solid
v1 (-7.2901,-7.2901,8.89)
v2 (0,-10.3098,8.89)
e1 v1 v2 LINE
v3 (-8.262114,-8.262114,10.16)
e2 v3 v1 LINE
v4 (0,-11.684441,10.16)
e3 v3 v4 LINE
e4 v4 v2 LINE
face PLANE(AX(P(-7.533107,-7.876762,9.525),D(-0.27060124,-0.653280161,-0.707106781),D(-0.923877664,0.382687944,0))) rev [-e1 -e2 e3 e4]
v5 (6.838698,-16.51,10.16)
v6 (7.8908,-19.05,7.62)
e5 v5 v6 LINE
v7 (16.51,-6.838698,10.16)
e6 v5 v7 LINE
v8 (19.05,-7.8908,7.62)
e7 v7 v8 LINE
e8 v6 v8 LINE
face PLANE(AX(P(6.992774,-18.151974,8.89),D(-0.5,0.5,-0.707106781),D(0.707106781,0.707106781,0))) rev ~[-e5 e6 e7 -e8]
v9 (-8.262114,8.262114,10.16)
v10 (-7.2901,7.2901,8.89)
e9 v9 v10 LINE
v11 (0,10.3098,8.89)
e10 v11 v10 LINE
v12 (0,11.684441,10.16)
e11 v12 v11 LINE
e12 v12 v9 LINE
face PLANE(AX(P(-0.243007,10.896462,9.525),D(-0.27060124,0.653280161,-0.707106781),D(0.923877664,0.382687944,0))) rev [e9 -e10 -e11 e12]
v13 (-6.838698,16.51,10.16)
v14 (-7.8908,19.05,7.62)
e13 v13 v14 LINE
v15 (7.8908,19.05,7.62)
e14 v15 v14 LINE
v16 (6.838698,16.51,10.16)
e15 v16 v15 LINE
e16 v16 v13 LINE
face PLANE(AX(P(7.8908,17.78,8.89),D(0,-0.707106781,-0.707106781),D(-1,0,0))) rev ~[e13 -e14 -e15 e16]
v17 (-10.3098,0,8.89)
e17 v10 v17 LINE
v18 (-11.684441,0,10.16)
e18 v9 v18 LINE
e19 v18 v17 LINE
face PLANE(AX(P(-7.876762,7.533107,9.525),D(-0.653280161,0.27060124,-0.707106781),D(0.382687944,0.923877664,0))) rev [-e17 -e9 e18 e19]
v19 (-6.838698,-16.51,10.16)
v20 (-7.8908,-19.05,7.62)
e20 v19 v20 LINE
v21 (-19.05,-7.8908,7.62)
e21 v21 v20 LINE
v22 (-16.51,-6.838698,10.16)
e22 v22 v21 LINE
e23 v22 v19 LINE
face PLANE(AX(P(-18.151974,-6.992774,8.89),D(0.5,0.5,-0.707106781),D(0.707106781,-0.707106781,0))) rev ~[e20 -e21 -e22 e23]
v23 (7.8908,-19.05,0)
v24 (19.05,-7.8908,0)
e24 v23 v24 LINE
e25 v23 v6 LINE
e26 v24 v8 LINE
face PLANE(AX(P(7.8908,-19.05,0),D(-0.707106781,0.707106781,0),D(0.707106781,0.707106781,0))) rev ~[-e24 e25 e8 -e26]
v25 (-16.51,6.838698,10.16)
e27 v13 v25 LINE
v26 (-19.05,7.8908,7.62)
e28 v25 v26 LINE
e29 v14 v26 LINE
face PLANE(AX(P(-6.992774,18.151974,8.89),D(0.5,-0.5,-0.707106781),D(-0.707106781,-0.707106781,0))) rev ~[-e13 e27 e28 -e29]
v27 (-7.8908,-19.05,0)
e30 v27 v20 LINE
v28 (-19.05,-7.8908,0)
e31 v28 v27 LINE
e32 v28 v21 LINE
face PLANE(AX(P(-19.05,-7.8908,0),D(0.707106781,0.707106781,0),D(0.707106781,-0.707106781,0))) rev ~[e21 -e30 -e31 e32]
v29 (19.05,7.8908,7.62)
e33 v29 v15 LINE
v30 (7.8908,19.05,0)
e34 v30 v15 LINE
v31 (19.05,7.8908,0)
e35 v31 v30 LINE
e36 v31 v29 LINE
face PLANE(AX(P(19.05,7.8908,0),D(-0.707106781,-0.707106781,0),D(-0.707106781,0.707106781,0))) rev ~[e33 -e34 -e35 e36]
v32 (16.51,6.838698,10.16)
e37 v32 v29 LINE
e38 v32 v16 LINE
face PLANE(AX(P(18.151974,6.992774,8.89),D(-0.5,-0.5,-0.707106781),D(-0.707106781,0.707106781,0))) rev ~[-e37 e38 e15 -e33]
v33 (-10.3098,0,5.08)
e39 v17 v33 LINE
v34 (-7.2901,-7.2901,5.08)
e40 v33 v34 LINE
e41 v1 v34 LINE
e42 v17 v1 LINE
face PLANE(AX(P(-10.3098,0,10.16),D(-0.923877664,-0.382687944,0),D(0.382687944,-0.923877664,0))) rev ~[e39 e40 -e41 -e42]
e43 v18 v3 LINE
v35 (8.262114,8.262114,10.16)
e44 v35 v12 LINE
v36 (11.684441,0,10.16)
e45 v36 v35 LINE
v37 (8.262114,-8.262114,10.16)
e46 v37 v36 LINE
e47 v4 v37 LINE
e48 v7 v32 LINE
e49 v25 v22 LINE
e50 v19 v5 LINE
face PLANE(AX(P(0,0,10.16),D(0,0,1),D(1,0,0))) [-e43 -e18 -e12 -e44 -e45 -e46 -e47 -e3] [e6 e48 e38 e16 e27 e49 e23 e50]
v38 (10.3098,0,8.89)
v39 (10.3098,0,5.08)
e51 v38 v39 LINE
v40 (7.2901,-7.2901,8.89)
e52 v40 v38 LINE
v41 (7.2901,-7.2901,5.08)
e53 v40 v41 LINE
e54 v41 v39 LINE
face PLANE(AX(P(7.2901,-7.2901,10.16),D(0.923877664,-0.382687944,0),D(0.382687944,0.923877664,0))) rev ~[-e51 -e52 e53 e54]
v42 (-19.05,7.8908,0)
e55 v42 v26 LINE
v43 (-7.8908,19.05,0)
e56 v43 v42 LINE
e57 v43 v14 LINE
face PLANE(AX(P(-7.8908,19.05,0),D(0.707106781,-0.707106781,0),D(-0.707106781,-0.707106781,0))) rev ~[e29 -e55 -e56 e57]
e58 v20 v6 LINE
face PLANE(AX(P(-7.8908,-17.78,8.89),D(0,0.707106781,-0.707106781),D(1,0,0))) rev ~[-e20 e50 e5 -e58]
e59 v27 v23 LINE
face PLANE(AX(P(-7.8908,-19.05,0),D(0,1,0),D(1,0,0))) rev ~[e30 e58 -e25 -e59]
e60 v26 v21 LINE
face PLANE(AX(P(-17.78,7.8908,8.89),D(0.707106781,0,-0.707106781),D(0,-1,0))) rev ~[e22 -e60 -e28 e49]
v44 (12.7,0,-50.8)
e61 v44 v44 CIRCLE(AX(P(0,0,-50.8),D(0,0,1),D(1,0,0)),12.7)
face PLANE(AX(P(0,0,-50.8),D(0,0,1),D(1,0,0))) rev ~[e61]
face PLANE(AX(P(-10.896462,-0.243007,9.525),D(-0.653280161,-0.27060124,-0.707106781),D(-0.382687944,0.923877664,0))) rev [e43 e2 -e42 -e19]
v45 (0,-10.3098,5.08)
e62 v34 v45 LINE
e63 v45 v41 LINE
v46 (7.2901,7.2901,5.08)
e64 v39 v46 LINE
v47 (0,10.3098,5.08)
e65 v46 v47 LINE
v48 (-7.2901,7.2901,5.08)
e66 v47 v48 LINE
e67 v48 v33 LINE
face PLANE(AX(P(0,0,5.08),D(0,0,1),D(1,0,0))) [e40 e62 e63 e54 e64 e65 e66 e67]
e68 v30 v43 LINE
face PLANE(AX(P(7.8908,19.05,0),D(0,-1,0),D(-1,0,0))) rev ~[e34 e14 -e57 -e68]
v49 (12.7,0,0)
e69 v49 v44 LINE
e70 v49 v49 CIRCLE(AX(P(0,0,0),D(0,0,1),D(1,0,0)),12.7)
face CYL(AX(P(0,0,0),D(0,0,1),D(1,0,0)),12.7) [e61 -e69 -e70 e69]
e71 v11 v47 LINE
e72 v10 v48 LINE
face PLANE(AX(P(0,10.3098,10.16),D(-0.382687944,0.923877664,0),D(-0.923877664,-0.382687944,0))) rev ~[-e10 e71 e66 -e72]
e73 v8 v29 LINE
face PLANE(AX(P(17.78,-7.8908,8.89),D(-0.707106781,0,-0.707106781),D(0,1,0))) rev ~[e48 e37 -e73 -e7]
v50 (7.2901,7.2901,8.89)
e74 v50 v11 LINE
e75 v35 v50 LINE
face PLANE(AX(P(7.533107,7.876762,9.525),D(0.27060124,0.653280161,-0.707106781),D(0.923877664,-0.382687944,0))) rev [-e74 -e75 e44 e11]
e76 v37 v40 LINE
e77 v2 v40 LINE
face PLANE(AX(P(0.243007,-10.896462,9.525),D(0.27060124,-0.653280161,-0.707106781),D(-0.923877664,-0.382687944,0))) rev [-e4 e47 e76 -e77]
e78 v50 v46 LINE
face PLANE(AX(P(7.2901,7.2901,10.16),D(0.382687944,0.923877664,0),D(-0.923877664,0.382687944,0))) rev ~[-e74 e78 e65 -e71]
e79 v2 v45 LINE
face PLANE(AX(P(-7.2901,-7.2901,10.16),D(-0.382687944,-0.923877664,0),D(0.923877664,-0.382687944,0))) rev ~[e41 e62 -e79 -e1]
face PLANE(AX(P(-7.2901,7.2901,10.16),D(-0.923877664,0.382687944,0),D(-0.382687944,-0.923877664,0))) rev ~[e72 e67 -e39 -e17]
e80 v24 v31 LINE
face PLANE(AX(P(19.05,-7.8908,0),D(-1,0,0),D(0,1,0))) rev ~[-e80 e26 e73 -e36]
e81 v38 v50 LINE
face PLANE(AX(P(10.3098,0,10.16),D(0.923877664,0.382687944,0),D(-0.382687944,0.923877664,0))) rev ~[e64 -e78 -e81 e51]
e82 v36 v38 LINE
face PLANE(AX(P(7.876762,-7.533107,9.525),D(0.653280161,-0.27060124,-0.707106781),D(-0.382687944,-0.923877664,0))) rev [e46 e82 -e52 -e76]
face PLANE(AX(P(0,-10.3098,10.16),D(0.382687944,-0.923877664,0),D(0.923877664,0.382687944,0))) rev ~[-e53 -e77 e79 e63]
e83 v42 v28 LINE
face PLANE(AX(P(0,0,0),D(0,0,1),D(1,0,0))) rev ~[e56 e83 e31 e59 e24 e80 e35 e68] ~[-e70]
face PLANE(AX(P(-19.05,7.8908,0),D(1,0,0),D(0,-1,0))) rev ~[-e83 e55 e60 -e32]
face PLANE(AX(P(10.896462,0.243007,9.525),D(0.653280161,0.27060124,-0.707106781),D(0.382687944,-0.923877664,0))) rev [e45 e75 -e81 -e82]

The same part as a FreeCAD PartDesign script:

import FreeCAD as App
import Part
import Sketcher
from FreeCAD import Vector
Q = App.Units.Quantity


def edges_at(feature, points):
    """Names of the edges that pass closest to the given points."""
    edges = feature.Shape.Edges
    near = lambda p: min(range(len(edges)), key=lambda i: edges[i].distToShape(Part.Vertex(*p))[0])
    return sorted({f"Edge{near(p) + 1}" for p in points})

doc = App.newDocument("Part")
body = doc.addObject("PartDesign::Body", "Body")

# Sketch on XY plane
sketch1 = doc.addObject("Sketcher::SketchObject", "Sketch")
body.addObject(sketch1)
sketch1.AttachmentSupport = (doc.XY_Plane, [""])
sketch1.MapMode = "FlatFace"
sketch1.addGeometry(Part.LineSegment(Vector(7.8908, -19.05, 0), Vector(19.05, -7.8908, 0)), False)
sketch1.addGeometry(Part.LineSegment(Vector(19.05, -7.8908, 0), Vector(19.05, 7.8908, 0)), False)
sketch1.addGeometry(Part.LineSegment(Vector(19.05, 7.8908, 0), Vector(7.8908, 19.05, 0)), False)
sketch1.addGeometry(Part.LineSegment(Vector(7.8908, 19.05, 0), Vector(-7.8908, 19.05, 0)), False)
sketch1.addGeometry(Part.LineSegment(Vector(-7.8908, 19.05, 0), Vector(-19.05, 7.8908, 0)), False)
sketch1.addGeometry(Part.LineSegment(Vector(-19.05, 7.8908, 0), Vector(-19.05, -7.8908, 0)), False)
sketch1.addGeometry(Part.LineSegment(Vector(-19.05, -7.8908, 0), Vector(-7.8908, -19.05, 0)), False)
sketch1.addGeometry(Part.LineSegment(Vector(-7.8908, -19.05, 0), Vector(7.8908, -19.05, 0)), False)
sketch1.addConstraint(Sketcher.Constraint("Coincident", 0, 2, 1, 1))
sketch1.addConstraint(Sketcher.Constraint("Coincident", 1, 2, 2, 1))
sketch1.addConstraint(Sketcher.Constraint("Coincident", 2, 2, 3, 1))
sketch1.addConstraint(Sketcher.Constraint("Coincident", 3, 2, 4, 1))
sketch1.addConstraint(Sketcher.Constraint("Coincident", 4, 2, 5, 1))
sketch1.addConstraint(Sketcher.Constraint("Coincident", 5, 2, 6, 1))
sketch1.addConstraint(Sketcher.Constraint("Coincident", 6, 2, 7, 1))
sketch1.addConstraint(Sketcher.Constraint("Coincident", 7, 2, 0, 1))
sketch1.addConstraint(Sketcher.Constraint("Vertical", 1))
sketch1.addConstraint(Sketcher.Constraint("Horizontal", 3))
sketch1.addConstraint(Sketcher.Constraint("Vertical", 5))
sketch1.addConstraint(Sketcher.Constraint("Horizontal", 7))
sketch1.addConstraint(Sketcher.Constraint("Symmetric", 0, 2, 4, 2, -1, 1))
sketch1.addConstraint(Sketcher.Constraint("Symmetric", 2, 2, 6, 2, -1, 1))
sketch1.addConstraint(Sketcher.Constraint("Perpendicular", 0, 2))
sketch1.addConstraint(Sketcher.Constraint("Perpendicular", 2, 4))
sketch1.addConstraint(Sketcher.Constraint("Perpendicular", 4, 6))
sketch1.addConstraint(Sketcher.Constraint("Horizontal", 1, 2, 4, 2))
sketch1.addConstraint(Sketcher.Constraint("Vertical", 3, 2, 6, 2))
sketch1.addConstraint(Sketcher.Constraint("Equal", 7, 1))
sketch1.addConstraint(Sketcher.Constraint("DistanceX", 4, 2, 1, 2, Q("1.5 in")))
sketch1.addConstraint(Sketcher.Constraint("DistanceX", 3, 2, 3, 1, 15.7816))
pad1 = doc.addObject("PartDesign::Pad", "Pad")
body.addObject(pad1)
pad1.Profile = sketch1
pad1.Length = Q("0.4 in")

# Sketch on XY plane
sketch2 = doc.addObject("Sketcher::SketchObject", "Sketch001")
body.addObject(sketch2)
sketch2.AttachmentSupport = (doc.XY_Plane, [""])
sketch2.MapMode = "FlatFace"
sketch2.addGeometry(Part.Circle(Vector(0, 0, 0), Vector(0, 0, 1), 12.7), False)
sketch2.addConstraint(Sketcher.Constraint("Coincident", 0, 3, -1, 1))
sketch2.addConstraint(Sketcher.Constraint("Diameter", 0, Q("1 in")))
pad2 = doc.addObject("PartDesign::Pad", "Pad001")
body.addObject(pad2)
pad2.Profile = sketch2
pad2.Length = Q("2 in")
pad2.Reversed = True

# Sketch on XY plane
sketch3 = doc.addObject("Sketcher::SketchObject", "Sketch002")
body.addObject(sketch3)
sketch3.AttachmentSupport = (doc.XY_Plane, [""])
sketch3.MapMode = "FlatFace"
sketch3.AttachmentOffset = App.Placement(Vector(0, 0, 0.4 * 25.4), App.Rotation())
sketch3.addGeometry(Part.LineSegment(Vector(-7.2901, -7.2901, 0), Vector(0, -10.3098, 0)), False)
sketch3.addGeometry(Part.LineSegment(Vector(0, -10.3098, 0), Vector(7.2901, -7.2901, 0)), False)
sketch3.addGeometry(Part.LineSegment(Vector(7.2901, -7.2901, 0), Vector(10.3098, 0, 0)), False)
sketch3.addGeometry(Part.LineSegment(Vector(10.3098, 0, 0), Vector(7.2901, 7.2901, 0)), False)
sketch3.addGeometry(Part.LineSegment(Vector(7.2901, 7.2901, 0), Vector(0, 10.3098, 0)), False)
sketch3.addGeometry(Part.LineSegment(Vector(0, 10.3098, 0), Vector(-7.2901, 7.2901, 0)), False)
sketch3.addGeometry(Part.LineSegment(Vector(-7.2901, 7.2901, 0), Vector(-10.3098, 0, 0)), False)
sketch3.addGeometry(Part.LineSegment(Vector(-10.3098, 0, 0), Vector(-7.2901, -7.2901, 0)), False)
sketch3.addConstraint(Sketcher.Constraint("Coincident", 0, 2, 1, 1))
sketch3.addConstraint(Sketcher.Constraint("Coincident", 1, 2, 2, 1))
sketch3.addConstraint(Sketcher.Constraint("Coincident", 2, 2, 3, 1))
sketch3.addConstraint(Sketcher.Constraint("Coincident", 3, 2, 4, 1))
sketch3.addConstraint(Sketcher.Constraint("Coincident", 4, 2, 5, 1))
sketch3.addConstraint(Sketcher.Constraint("Coincident", 5, 2, 6, 1))
sketch3.addConstraint(Sketcher.Constraint("Coincident", 6, 2, 7, 1))
sketch3.addConstraint(Sketcher.Constraint("Coincident", 7, 2, 0, 1))
sketch3.addConstraint(Sketcher.Constraint("Symmetric", 0, 2, 4, 2, -1, 1))
sketch3.addConstraint(Sketcher.Constraint("Symmetric", 1, 2, 5, 2, -1, 1))
sketch3.addConstraint(Sketcher.Constraint("Symmetric", 2, 2, 6, 2, -1, 1))
sketch3.addConstraint(Sketcher.Constraint("Symmetric", 3, 2, 7, 2, -1, 1))
sketch3.addConstraint(Sketcher.Constraint("Symmetric", 3, 2, 5, 2, -2))
sketch3.addConstraint(Sketcher.Constraint("PointOnObject", 0, 2, -2))
sketch3.addConstraint(Sketcher.Constraint("PointOnObject", 2, 2, -1))
sketch3.addConstraint(Sketcher.Constraint("Perpendicular", 0, 2))
sketch3.addConstraint(Sketcher.Constraint("Equal", 1, 2))
sketch3.addConstraint(Sketcher.Constraint("Angle", 0, Q("-22.5003 deg")))
sketch3.addConstraint(Sketcher.Constraint("DistanceX", -1, 1, 1, 2, Q("0.287 in")))
pocket1 = doc.addObject("PartDesign::Pocket", "Pocket")
body.addObject(pocket1)
pocket1.Profile = sketch3
pocket1.Length = Q("0.2 in")
doc.recompute()

chamfer = doc.addObject("PartDesign::Chamfer", "Chamfer")
body.addObject(chamfer)
chamfer.Base = (pocket1, edges_at(pocket1, [
    (-8.8, 3.645, 10.16),
    (-3.645, 8.8, 10.16),
    (3.645, 8.8, 10.16),
    (8.8, 3.645, 10.16),
    (8.8, -3.645, 10.16),
    (3.645, -8.8, 10.16),
    (-3.645, -8.8, 10.16),
    (-8.8, -3.645, 10.16),
]))
chamfer.Size = Q("0.05 in")
doc.recompute()

chamfer2 = doc.addObject("PartDesign::Chamfer", "Chamfer001")
body.addObject(chamfer2)
chamfer2.Base = (chamfer, edges_at(chamfer, [
    (13.47, -13.47, 10.16),
    (19.05, 0, 10.16),
    (13.47, 13.47, 10.16),
    (0, 19.05, 10.16),
    (-13.47, 13.47, 10.16),
    (-19.05, 0, 10.16),
    (-13.47, -13.47, 10.16),
    (0, -19.05, 10.16),
]))
chamfer2.Size = Q("0.1 in")

doc.recompute()
